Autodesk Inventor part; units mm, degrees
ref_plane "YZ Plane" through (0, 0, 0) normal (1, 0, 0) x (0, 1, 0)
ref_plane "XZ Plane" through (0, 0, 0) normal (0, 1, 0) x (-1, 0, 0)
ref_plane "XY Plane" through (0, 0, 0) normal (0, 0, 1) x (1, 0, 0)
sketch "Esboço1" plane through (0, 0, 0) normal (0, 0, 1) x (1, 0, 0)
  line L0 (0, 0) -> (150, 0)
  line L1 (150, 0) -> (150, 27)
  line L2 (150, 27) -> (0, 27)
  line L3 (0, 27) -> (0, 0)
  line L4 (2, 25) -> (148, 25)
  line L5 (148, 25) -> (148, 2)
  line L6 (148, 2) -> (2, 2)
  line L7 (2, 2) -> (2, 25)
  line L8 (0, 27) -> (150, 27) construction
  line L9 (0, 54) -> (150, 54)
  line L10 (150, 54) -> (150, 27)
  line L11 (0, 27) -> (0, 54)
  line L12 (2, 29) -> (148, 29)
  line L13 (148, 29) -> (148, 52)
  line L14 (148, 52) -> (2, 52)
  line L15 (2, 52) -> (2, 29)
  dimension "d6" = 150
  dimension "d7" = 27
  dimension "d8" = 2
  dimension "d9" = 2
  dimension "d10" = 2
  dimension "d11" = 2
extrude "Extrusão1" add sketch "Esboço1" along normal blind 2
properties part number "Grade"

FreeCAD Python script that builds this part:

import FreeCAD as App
import Part
import Sketcher

V = App.Vector


def add_polygon(sketch, points):
    """Adds a closed chain of lines whose ends are joined by coincident constraints."""
    first, n = sketch.GeometryCount, len(points)
    for a, b in zip(points, points[1:] + points[:1]):
        sketch.addGeometry(Part.LineSegment(App.Vector(*a, 0), App.Vector(*b, 0)), False)
    for i in range(n):
        sketch.addConstraint(Sketcher.Constraint("Coincident", first + i, 2, first + (i + 1) % n, 1))

doc = App.newDocument("Part")
params = doc.addObject("Spreadsheet::Sheet", "Params")
for row, (alias, value) in enumerate([
    ("sketch1_width", "150 mm"),
    ("sketch1_height", "54 mm"),
    ("pad1_length", "2 mm"),
], start=1):
    params.set(f"A{row}", alias)
    params.set(f"B{row}", "=" + value)
    params.setAlias(f"B{row}", alias)

body = doc.addObject("PartDesign::Body", "Body")

# Sketch on XY plane
sketch1 = body.newObject("Sketcher::SketchObject", "Sketch")
sketch1.AttachmentSupport = (doc.getObject("XY_Plane"), [""])
sketch1.MapMode = "FlatFace"
add_polygon(sketch1, [(0, 0), (150, 0), (150, 54), (0, 54)])  # lines 0-3
add_polygon(sketch1, [(2, 2), (2, 25), (148, 25), (148, 2)])  # lines 4-7
add_polygon(sketch1, [(2, 29), (2, 52), (148, 52), (148, 29)])  # lines 8-11
sketch1.addConstraint(Sketcher.Constraint("Horizontal", 0))
sketch1.addConstraint(Sketcher.Constraint("Vertical", 1))
sketch1.addConstraint(Sketcher.Constraint("Horizontal", 2))
sketch1.addConstraint(Sketcher.Constraint("Vertical", 3))
sketch1.addConstraint(Sketcher.Constraint("Vertical", 4))
sketch1.addConstraint(Sketcher.Constraint("Horizontal", 5))
sketch1.addConstraint(Sketcher.Constraint("Vertical", 6))
sketch1.addConstraint(Sketcher.Constraint("Horizontal", 7))
sketch1.addConstraint(Sketcher.Constraint("Vertical", 8))
sketch1.addConstraint(Sketcher.Constraint("Horizontal", 9))
sketch1.addConstraint(Sketcher.Constraint("Vertical", 10))
sketch1.addConstraint(Sketcher.Constraint("Horizontal", 11))
sketch1.addConstraint(Sketcher.Constraint("Coincident", 3, 2, -1, 1))
sketch1.addConstraint(Sketcher.Constraint("Vertical", 7, 2, 8, 2))
sketch1.addConstraint(Sketcher.Constraint("Vertical", 6, 2, 9, 2))
sketch1.addConstraint(Sketcher.Constraint("Equal", 6, 8))
sketch1.addConstraint(Sketcher.Constraint("DistanceX", 0, 1, 0, 2, 150.0))
sketch1.addConstraint(Sketcher.Constraint("DistanceX", -1, 1, 4, 2, 2.0))
sketch1.addConstraint(Sketcher.Constraint("DistanceY", -1, 1, 6, 2, 2.0))
sketch1.addConstraint(Sketcher.Constraint("DistanceX", 5, 2, 0, 2, 2.0))
sketch1.addConstraint(Sketcher.Constraint("DistanceY", 8, 2, 2, 2, 2.0))
sketch1.addConstraint(Sketcher.Constraint("DistanceY", 4, 2, 8, 2, 27.0))
sketch1.addConstraint(Sketcher.Constraint("DistanceY", 1, 1, 1, 2, 54.0))
sketch1.setExpression("Constraints[28]", "Params.sketch1_width")
sketch1.setExpression("Constraints[34]", "Params.sketch1_height")
pad1 = body.newObject("PartDesign::Pad", "Pad")
pad1.Profile = sketch1
pad1.setExpression("Length", "Params.pad1_length")

doc.recompute()
